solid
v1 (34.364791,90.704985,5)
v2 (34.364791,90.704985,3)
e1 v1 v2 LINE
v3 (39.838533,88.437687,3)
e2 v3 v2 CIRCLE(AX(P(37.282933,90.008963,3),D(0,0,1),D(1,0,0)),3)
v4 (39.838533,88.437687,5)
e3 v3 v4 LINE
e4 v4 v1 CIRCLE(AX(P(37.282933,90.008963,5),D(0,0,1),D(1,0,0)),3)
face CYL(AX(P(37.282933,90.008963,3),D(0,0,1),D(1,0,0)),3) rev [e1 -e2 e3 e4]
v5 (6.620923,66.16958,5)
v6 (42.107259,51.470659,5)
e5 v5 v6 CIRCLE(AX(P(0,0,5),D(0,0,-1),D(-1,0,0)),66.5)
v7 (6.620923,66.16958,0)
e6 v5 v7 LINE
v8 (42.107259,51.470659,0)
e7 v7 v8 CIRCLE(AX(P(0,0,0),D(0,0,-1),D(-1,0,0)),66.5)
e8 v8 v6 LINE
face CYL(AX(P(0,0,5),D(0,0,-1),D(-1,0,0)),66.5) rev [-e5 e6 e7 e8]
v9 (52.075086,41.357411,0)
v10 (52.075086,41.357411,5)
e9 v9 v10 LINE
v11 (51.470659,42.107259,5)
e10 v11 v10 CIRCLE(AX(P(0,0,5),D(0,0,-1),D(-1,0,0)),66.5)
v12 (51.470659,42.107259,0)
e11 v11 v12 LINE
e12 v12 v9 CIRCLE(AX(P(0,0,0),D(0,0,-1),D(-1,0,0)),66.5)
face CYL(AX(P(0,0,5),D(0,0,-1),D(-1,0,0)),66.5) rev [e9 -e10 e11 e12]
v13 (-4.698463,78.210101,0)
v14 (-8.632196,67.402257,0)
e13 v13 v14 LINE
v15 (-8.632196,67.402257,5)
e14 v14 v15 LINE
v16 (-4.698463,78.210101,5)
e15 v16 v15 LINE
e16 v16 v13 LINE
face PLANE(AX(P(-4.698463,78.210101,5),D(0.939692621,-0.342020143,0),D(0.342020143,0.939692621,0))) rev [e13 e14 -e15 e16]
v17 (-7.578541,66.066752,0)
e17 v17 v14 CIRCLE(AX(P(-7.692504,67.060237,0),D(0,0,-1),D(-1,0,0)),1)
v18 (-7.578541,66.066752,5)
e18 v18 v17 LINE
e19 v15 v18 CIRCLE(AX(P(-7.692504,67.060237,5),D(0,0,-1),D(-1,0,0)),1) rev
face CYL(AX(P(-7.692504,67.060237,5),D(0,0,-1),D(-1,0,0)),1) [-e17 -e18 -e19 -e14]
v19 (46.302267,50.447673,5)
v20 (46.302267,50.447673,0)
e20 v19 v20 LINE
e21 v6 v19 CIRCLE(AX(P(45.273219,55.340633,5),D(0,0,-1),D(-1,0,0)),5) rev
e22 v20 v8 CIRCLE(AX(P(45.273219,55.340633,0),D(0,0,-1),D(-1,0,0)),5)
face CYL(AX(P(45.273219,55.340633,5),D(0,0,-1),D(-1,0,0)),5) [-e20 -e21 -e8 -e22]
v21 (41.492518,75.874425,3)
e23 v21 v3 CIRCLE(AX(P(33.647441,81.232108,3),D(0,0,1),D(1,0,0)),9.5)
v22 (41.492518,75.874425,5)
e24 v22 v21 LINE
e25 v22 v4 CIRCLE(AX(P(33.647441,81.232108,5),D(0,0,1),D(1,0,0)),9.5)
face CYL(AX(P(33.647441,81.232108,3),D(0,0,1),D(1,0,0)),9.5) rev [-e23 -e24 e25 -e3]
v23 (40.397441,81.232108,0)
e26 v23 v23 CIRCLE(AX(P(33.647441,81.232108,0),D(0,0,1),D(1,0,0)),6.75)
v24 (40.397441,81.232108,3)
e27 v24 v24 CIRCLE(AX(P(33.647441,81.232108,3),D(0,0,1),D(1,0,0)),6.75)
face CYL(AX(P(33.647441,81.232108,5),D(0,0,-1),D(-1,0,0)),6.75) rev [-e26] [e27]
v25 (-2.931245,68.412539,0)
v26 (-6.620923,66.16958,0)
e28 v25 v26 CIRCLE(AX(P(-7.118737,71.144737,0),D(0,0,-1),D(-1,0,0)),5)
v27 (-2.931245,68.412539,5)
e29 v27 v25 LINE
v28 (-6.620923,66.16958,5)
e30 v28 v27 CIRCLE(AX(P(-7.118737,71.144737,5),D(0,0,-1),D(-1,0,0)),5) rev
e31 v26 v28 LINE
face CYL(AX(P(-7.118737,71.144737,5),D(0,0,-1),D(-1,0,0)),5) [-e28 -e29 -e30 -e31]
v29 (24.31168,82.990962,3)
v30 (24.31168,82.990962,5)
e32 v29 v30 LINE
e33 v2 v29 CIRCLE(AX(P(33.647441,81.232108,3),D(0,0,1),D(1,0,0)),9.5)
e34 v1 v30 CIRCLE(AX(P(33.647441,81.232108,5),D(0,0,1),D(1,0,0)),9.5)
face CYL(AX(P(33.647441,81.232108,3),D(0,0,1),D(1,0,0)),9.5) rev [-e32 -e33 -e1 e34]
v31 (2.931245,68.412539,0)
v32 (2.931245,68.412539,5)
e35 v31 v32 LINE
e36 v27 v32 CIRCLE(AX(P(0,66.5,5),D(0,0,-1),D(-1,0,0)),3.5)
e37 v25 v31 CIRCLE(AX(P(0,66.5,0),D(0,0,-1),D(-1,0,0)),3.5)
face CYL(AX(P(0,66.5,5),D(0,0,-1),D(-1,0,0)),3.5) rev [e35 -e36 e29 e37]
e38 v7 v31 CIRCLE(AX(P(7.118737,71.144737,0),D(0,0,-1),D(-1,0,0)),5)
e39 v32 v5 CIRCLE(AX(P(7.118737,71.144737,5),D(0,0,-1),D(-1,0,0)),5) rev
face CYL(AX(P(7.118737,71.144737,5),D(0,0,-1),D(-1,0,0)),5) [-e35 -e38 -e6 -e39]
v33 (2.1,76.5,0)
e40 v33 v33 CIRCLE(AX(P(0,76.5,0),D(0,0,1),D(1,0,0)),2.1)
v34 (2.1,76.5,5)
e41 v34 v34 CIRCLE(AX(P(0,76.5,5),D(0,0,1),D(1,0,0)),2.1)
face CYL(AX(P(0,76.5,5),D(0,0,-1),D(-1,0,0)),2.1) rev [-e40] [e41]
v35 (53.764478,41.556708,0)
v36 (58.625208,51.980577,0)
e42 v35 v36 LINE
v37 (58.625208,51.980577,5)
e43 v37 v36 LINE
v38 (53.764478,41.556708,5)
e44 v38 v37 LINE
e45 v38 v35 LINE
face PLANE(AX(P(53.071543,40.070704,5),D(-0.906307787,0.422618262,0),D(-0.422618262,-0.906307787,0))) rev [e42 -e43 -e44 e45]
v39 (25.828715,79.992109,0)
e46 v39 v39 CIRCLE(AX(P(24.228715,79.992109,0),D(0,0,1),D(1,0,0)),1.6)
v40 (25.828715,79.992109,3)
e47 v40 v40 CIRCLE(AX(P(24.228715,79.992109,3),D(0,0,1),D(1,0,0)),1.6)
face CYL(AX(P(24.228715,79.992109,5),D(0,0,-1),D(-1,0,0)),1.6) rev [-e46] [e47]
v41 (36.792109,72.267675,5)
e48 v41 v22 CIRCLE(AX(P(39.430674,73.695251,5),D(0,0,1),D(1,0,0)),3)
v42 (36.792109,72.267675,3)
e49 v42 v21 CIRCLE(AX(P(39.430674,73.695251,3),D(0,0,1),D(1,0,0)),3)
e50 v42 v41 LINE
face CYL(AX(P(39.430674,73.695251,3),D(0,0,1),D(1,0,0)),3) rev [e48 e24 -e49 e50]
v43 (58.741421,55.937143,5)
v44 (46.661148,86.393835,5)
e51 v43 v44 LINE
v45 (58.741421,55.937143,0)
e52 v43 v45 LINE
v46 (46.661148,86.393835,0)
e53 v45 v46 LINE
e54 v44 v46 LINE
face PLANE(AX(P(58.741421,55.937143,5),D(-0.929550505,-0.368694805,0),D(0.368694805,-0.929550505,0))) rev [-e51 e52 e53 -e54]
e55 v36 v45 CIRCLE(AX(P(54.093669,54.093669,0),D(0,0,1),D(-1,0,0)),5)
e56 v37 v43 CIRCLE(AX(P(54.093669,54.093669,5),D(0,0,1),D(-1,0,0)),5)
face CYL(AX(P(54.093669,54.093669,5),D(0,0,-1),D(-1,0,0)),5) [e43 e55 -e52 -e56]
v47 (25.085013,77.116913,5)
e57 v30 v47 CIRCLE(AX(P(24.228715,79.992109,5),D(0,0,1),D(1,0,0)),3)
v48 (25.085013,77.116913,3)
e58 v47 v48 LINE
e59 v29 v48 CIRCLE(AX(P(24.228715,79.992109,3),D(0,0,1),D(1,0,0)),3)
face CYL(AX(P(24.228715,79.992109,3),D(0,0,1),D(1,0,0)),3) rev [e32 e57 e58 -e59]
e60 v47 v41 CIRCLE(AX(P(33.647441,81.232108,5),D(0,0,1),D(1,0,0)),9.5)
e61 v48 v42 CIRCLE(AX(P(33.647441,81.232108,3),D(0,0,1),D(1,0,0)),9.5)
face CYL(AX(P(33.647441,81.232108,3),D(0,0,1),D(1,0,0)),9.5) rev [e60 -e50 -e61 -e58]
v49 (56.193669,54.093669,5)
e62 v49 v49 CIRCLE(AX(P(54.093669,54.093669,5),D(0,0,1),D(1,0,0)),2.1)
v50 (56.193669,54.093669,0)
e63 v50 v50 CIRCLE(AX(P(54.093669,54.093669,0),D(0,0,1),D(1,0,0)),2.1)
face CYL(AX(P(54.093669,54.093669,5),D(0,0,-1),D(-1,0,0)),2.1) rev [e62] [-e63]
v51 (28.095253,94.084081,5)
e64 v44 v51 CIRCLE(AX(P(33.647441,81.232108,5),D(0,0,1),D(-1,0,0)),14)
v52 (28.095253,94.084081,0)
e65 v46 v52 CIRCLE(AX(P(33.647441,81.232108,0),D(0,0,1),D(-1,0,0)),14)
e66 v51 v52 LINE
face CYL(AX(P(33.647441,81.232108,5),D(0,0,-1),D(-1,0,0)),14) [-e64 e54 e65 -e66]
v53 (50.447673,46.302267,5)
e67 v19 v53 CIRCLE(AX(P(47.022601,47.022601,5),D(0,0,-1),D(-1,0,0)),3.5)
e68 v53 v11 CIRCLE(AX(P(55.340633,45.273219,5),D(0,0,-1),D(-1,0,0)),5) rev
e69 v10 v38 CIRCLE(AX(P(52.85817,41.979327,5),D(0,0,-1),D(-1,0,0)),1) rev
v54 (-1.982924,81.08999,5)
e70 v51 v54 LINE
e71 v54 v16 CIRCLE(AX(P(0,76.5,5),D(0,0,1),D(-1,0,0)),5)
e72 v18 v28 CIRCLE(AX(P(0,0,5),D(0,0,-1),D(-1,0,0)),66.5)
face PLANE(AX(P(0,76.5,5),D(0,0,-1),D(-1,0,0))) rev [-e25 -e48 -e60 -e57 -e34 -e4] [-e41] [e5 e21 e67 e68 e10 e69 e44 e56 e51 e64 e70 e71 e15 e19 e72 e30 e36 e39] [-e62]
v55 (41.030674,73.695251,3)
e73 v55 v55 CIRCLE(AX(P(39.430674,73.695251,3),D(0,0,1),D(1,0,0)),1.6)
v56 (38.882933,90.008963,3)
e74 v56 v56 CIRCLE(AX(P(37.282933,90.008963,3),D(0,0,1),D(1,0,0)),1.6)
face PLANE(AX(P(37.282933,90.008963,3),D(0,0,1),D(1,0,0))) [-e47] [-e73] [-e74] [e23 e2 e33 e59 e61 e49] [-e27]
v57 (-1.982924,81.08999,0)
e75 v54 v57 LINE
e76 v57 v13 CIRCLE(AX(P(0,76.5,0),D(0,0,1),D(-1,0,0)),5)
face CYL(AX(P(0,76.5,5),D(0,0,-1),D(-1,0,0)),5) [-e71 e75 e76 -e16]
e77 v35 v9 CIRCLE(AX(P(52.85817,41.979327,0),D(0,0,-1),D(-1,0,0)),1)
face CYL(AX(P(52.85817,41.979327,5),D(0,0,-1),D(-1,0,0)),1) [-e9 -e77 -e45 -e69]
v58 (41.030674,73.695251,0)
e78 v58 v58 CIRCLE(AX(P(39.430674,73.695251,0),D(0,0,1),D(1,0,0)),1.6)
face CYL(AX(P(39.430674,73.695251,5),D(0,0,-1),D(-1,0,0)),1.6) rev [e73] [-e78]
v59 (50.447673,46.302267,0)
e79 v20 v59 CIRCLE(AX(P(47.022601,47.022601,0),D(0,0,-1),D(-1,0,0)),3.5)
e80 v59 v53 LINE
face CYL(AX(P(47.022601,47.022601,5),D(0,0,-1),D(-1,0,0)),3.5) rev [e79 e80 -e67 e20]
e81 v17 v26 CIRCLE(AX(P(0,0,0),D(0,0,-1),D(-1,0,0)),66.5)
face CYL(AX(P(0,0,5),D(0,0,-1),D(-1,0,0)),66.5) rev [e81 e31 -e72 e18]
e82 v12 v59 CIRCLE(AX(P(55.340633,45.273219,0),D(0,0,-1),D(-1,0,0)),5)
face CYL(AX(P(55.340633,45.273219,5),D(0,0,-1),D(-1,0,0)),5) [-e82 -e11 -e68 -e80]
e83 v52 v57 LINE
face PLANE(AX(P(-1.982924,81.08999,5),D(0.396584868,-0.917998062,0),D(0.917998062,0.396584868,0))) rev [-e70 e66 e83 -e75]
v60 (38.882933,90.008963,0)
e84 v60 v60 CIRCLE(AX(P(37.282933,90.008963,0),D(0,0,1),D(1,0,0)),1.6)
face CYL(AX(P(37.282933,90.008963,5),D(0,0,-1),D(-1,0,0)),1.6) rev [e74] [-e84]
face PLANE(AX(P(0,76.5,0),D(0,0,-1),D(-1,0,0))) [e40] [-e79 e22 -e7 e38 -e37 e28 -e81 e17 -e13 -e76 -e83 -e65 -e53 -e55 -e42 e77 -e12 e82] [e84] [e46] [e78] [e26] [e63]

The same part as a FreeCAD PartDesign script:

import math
import FreeCAD as App
import Part
import Sketcher
Q = App.Units.Quantity


def edges_at(feature, points):
    """Names of the edges that pass closest to the given points."""
    edges = feature.Shape.Edges
    near = lambda p: min(range(len(edges)), key=lambda i: edges[i].distToShape(Part.Vertex(*p))[0])
    return sorted({f"Edge{near(p) + 1}" for p in points})

doc = App.newDocument("Part")
body = doc.addObject("PartDesign::Body", "Body")

# Sketch on XY plane
sketch1 = body.newObject("Sketcher::SketchObject", "Sketch")
sketch1.AttachmentSupport = (doc.getObject("XY_Plane"), [""])
sketch1.MapMode = "FlatFace"
sketch1.addGeometry(Part.LineSegment(App.Vector(28.1, 94.1, 0), App.Vector(-2, 81.1, 0)), False)
sketch1.addGeometry(Part.ArcOfCircle(Part.Circle(App.Vector(0, 76.5, 0), App.Vector(0, 0, 1), 5), math.radians(113), math.radians(160)), False)
sketch1.addGeometry(Part.LineSegment(App.Vector(-4.7, 78.2, 0), App.Vector(-9.2, 65.9, 0)), False)
sketch1.addGeometry(Part.ArcOfCircle(Part.Circle(App.Vector(0, 0, 0), App.Vector(0, 0, 1), 66.5), math.radians(93.02), math.radians(97.95)), False)
sketch1.addGeometry(Part.ArcOfCircle(Part.Circle(App.Vector(0, 66.5, 0), App.Vector(0, 0, 1), 3.5), math.radians(-2), math.radians(182)), False)
sketch1.addGeometry(Part.ArcOfCircle(Part.Circle(App.Vector(0, 0, 0), App.Vector(0, 0, 1), 66.5), math.radians(48), math.radians(87)), False)
sketch1.addGeometry(Part.ArcOfCircle(Part.Circle(App.Vector(47, 47, 0), App.Vector(0, 0, 1), 3.5), math.radians(-47), math.radians(137)), False)
sketch1.addGeometry(Part.ArcOfCircle(Part.Circle(App.Vector(0, 0, 0), App.Vector(0, 0, 1), 66.5), math.radians(37.05), math.radians(41.98)), False)
sketch1.addGeometry(Part.LineSegment(App.Vector(53.1, 40.1, 0), App.Vector(58.6, 52, 0)), False)
sketch1.addGeometry(Part.ArcOfCircle(Part.Circle(App.Vector(54.1, 54.1, 0), App.Vector(0, 0, 1), 5), math.radians(-25), math.radians(22)), False)
sketch1.addGeometry(Part.LineSegment(App.Vector(58.7, 55.9, 0), App.Vector(46.7, 86.4, 0)), False)
sketch1.addGeometry(Part.ArcOfCircle(Part.Circle(App.Vector(33.6, 81.2, 0), App.Vector(0, 0, 1), 14), math.radians(22), math.radians(113)), False)
sketch1.addGeometry(Part.Circle(App.Vector(54.1, 54.1, 0), App.Vector(0, 0, 1), 2.1), False)
sketch1.addGeometry(Part.Circle(App.Vector(39.4, 73.7, 0), App.Vector(0, 0, 1), 1.6), False)
sketch1.addGeometry(Part.Circle(App.Vector(33.6, 81.2, 0), App.Vector(0, 0, 1), 6.8), False)
sketch1.addGeometry(Part.Circle(App.Vector(37.3, 90, 0), App.Vector(0, 0, 1), 1.6), False)
sketch1.addGeometry(Part.Circle(App.Vector(24.2, 80, 0), App.Vector(0, 0, 1), 1.6), False)
sketch1.addGeometry(Part.Circle(App.Vector(0, 76.5, 0), App.Vector(0, 0, 1), 2.1), False)
sketch1.addConstraint(Sketcher.Constraint("Tangent", 0, 2, 1, 1))
sketch1.addConstraint(Sketcher.Constraint("Tangent", 1, 2, 2, 1))
sketch1.addConstraint(Sketcher.Constraint("Coincident", 2, 2, 3, 2))
sketch1.addConstraint(Sketcher.Constraint("Coincident", 3, 1, 4, 2))
sketch1.addConstraint(Sketcher.Constraint("Coincident", 4, 1, 5, 2))
sketch1.addConstraint(Sketcher.Constraint("Coincident", 5, 1, 6, 2))
sketch1.addConstraint(Sketcher.Constraint("Coincident", 6, 1, 7, 2))
sketch1.addConstraint(Sketcher.Constraint("Coincident", 7, 1, 8, 1))
sketch1.addConstraint(Sketcher.Constraint("Tangent", 8, 2, 9, 1))
sketch1.addConstraint(Sketcher.Constraint("Tangent", 9, 2, 10, 1))
sketch1.addConstraint(Sketcher.Constraint("Tangent", 10, 2, 11, 1))
sketch1.addConstraint(Sketcher.Constraint("Tangent", 11, 2, 0, 1))
sketch1.addConstraint(Sketcher.Constraint("Coincident", 3, 3, -1, 1))
sketch1.addConstraint(Sketcher.Constraint("Coincident", 5, 3, -1, 1))
sketch1.addConstraint(Sketcher.Constraint("Coincident", 7, 3, -1, 1))
sketch1.addConstraint(Sketcher.Constraint("Coincident", 12, 3, 9, 3))
sketch1.addConstraint(Sketcher.Constraint("Coincident", 14, 3, 11, 3))
sketch1.addConstraint(Sketcher.Constraint("Coincident", 17, 3, 1, 3))
sketch1.addConstraint(Sketcher.Constraint("Equal", 3, 5))
sketch1.addConstraint(Sketcher.Constraint("Equal", 4, 6))
sketch1.addConstraint(Sketcher.Constraint("Equal", 5, 7))
sketch1.addConstraint(Sketcher.Constraint("Equal", 1, 9))
sketch1.addConstraint(Sketcher.Constraint("Equal", 13, 15))
sketch1.addConstraint(Sketcher.Constraint("Equal", 15, 16))
sketch1.addConstraint(Sketcher.Constraint("Equal", 12, 17))
sketch1.addConstraint(Sketcher.Constraint("PointOnObject", 1, 3, -2))
sketch1.addConstraint(Sketcher.Constraint("PointOnObject", 4, 3, -2))
sketch1.addConstraint(Sketcher.Constraint("Equal", 2, 8))
sketch1.addConstraint(Sketcher.Constraint("Equal", 0, 10))
sketch1.addConstraint(Sketcher.Constraint("Radius", 1, 5.0))
sketch1.addConstraint(Sketcher.Constraint("Radius", 11, 14.0))
sketch1.addConstraint(Sketcher.Constraint("Diameter", 12, 4.2))
sketch1.addConstraint(Sketcher.Constraint("Diameter", 13, 3.2))
sketch1.addConstraint(Sketcher.Constraint("Diameter", 14, 13.5))
sketch1.addConstraint(Sketcher.Constraint("Radius", 3, 66.5))
sketch1.addConstraint(Sketcher.Constraint("Radius", 4, 3.5))
sketch1.addConstraint(Sketcher.Constraint("Angle", 2, Q("-110 deg")))
sketch1.addConstraint(Sketcher.Constraint("Angle", 8, Q("65 deg")))
sketch1.addConstraint(Sketcher.Constraint("DistanceY", 4, 3, 1, 3, 10.0))
sketch1.addConstraint(Sketcher.Constraint("DistanceY", -1, 1, 1, 3, 76.5))
sketch1.addConstraint(Sketcher.Constraint("DistanceY", 16, 3, 11, 3, 1.239999))
sketch1.addConstraint(Sketcher.Constraint("DistanceX", -1, 1, 6, 3, 47.022601))
sketch1.addConstraint(Sketcher.Constraint("DistanceY", -1, 1, 6, 3, 47.022601))
sketch1.addConstraint(Sketcher.Constraint("DistanceX", -1, 1, 9, 3, 54.093669))
sketch1.addConstraint(Sketcher.Constraint("DistanceX", -1, 1, 11, 3, 33.647441))
sketch1.addConstraint(Sketcher.Constraint("DistanceY", -1, 1, 13, 3, 73.695251))
sketch1.addConstraint(Sketcher.Constraint("DistanceX", 15, 3, 13, 3, 2.147741))
sketch1.addConstraint(Sketcher.Constraint("DistanceX", 16, 3, 13, 3, 15.20196))
sketch1.addConstraint(Sketcher.Constraint("DistanceX", 0, 2, 16, 3, 26.211639))
sketch1.addConstraint(Sketcher.Constraint("DistanceY", 10, 2, 15, 3, 3.615128))
pad1 = body.newObject("PartDesign::Pad", "Pad")
pad1.Profile = sketch1
pad1.Length = 5
doc.recompute()

fillet = body.newObject("PartDesign::Fillet", "Fillet")
fillet.Base = (pad1, edges_at(pad1, [
    (49.431, 44.483, 2.5),
    (44.483, 49.431, 2.5),
    (3.499, 66.408, 2.5),
    (-3.499, 66.408, 2.5),
]))
fillet.Radius = 5
doc.recompute()

fillet2 = body.newObject("PartDesign::Fillet", "Fillet001")
fillet2.Base = (fillet, edges_at(fillet, [(53.072, 40.071, 2.5), (-9.193, 65.862, 2.5)]))
fillet2.Radius = 1

# Sketch on XY plane
sketch2 = body.newObject("Sketcher::SketchObject", "Sketch001")
sketch2.AttachmentSupport = (doc.getObject("XY_Plane"), [""])
sketch2.MapMode = "FlatFace"
sketch2.AttachmentOffset = App.Placement(App.Vector(0, 0, 5), App.Rotation())
sketch2.addGeometry(Part.Circle(App.Vector(37.3, 90, 0), App.Vector(0, 0, 1), 3), False)
sketch2.addGeometry(Part.Circle(App.Vector(39.4, 73.7, 0), App.Vector(0, 0, 1), 3), False)
sketch2.addGeometry(Part.Circle(App.Vector(24.2, 80, 0), App.Vector(0, 0, 1), 3), False)
sketch2.addConstraint(Sketcher.Constraint("Equal", 0, 1))
sketch2.addConstraint(Sketcher.Constraint("Equal", 1, 2))
sketch2.addConstraint(Sketcher.Constraint("Diameter", 0, 6.0))
sketch2.addConstraint(Sketcher.Constraint("DistanceY", -1, 1, 1, 3, 73.695251))
sketch2.addConstraint(Sketcher.Constraint("DistanceY", -1, 1, 2, 3, 79.992109))
sketch2.addConstraint(Sketcher.Constraint("DistanceX", 0, 3, 1, 3, 2.147741))
sketch2.addConstraint(Sketcher.Constraint("DistanceX", 2, 3, 1, 3, 15.20196))
sketch2.addConstraint(Sketcher.Constraint("DistanceX", -1, 1, 0, 3, 37.282933))
sketch2.addConstraint(Sketcher.Constraint("DistanceY", -1, 1, 0, 3, 90.008963))
pocket1 = body.newObject("PartDesign::Pocket", "Pocket")
pocket1.Profile = sketch2
pocket1.Length = 2

# Sketch on XY plane
sketch3 = body.newObject("Sketcher::SketchObject", "Sketch002")
sketch3.AttachmentSupport = (doc.getObject("XY_Plane"), [""])
sketch3.MapMode = "FlatFace"
sketch3.AttachmentOffset = App.Placement(App.Vector(0, 0, 5), App.Rotation())
sketch3.addGeometry(Part.Circle(App.Vector(34, 81, 0), App.Vector(0, 0, 1), 10), False)
sketch3.addConstraint(Sketcher.Constraint("Diameter", 0, 19.0))
sketch3.addConstraint(Sketcher.Constraint("DistanceX", -1, 1, 0, 3, 33.647441))
sketch3.addConstraint(Sketcher.Constraint("DistanceY", -1, 1, 0, 3, 81.232108))
pocket2 = body.newObject("PartDesign::Pocket", "Pocket001")
pocket2.Profile = sketch3
pocket2.Length = 2

doc.recompute()
